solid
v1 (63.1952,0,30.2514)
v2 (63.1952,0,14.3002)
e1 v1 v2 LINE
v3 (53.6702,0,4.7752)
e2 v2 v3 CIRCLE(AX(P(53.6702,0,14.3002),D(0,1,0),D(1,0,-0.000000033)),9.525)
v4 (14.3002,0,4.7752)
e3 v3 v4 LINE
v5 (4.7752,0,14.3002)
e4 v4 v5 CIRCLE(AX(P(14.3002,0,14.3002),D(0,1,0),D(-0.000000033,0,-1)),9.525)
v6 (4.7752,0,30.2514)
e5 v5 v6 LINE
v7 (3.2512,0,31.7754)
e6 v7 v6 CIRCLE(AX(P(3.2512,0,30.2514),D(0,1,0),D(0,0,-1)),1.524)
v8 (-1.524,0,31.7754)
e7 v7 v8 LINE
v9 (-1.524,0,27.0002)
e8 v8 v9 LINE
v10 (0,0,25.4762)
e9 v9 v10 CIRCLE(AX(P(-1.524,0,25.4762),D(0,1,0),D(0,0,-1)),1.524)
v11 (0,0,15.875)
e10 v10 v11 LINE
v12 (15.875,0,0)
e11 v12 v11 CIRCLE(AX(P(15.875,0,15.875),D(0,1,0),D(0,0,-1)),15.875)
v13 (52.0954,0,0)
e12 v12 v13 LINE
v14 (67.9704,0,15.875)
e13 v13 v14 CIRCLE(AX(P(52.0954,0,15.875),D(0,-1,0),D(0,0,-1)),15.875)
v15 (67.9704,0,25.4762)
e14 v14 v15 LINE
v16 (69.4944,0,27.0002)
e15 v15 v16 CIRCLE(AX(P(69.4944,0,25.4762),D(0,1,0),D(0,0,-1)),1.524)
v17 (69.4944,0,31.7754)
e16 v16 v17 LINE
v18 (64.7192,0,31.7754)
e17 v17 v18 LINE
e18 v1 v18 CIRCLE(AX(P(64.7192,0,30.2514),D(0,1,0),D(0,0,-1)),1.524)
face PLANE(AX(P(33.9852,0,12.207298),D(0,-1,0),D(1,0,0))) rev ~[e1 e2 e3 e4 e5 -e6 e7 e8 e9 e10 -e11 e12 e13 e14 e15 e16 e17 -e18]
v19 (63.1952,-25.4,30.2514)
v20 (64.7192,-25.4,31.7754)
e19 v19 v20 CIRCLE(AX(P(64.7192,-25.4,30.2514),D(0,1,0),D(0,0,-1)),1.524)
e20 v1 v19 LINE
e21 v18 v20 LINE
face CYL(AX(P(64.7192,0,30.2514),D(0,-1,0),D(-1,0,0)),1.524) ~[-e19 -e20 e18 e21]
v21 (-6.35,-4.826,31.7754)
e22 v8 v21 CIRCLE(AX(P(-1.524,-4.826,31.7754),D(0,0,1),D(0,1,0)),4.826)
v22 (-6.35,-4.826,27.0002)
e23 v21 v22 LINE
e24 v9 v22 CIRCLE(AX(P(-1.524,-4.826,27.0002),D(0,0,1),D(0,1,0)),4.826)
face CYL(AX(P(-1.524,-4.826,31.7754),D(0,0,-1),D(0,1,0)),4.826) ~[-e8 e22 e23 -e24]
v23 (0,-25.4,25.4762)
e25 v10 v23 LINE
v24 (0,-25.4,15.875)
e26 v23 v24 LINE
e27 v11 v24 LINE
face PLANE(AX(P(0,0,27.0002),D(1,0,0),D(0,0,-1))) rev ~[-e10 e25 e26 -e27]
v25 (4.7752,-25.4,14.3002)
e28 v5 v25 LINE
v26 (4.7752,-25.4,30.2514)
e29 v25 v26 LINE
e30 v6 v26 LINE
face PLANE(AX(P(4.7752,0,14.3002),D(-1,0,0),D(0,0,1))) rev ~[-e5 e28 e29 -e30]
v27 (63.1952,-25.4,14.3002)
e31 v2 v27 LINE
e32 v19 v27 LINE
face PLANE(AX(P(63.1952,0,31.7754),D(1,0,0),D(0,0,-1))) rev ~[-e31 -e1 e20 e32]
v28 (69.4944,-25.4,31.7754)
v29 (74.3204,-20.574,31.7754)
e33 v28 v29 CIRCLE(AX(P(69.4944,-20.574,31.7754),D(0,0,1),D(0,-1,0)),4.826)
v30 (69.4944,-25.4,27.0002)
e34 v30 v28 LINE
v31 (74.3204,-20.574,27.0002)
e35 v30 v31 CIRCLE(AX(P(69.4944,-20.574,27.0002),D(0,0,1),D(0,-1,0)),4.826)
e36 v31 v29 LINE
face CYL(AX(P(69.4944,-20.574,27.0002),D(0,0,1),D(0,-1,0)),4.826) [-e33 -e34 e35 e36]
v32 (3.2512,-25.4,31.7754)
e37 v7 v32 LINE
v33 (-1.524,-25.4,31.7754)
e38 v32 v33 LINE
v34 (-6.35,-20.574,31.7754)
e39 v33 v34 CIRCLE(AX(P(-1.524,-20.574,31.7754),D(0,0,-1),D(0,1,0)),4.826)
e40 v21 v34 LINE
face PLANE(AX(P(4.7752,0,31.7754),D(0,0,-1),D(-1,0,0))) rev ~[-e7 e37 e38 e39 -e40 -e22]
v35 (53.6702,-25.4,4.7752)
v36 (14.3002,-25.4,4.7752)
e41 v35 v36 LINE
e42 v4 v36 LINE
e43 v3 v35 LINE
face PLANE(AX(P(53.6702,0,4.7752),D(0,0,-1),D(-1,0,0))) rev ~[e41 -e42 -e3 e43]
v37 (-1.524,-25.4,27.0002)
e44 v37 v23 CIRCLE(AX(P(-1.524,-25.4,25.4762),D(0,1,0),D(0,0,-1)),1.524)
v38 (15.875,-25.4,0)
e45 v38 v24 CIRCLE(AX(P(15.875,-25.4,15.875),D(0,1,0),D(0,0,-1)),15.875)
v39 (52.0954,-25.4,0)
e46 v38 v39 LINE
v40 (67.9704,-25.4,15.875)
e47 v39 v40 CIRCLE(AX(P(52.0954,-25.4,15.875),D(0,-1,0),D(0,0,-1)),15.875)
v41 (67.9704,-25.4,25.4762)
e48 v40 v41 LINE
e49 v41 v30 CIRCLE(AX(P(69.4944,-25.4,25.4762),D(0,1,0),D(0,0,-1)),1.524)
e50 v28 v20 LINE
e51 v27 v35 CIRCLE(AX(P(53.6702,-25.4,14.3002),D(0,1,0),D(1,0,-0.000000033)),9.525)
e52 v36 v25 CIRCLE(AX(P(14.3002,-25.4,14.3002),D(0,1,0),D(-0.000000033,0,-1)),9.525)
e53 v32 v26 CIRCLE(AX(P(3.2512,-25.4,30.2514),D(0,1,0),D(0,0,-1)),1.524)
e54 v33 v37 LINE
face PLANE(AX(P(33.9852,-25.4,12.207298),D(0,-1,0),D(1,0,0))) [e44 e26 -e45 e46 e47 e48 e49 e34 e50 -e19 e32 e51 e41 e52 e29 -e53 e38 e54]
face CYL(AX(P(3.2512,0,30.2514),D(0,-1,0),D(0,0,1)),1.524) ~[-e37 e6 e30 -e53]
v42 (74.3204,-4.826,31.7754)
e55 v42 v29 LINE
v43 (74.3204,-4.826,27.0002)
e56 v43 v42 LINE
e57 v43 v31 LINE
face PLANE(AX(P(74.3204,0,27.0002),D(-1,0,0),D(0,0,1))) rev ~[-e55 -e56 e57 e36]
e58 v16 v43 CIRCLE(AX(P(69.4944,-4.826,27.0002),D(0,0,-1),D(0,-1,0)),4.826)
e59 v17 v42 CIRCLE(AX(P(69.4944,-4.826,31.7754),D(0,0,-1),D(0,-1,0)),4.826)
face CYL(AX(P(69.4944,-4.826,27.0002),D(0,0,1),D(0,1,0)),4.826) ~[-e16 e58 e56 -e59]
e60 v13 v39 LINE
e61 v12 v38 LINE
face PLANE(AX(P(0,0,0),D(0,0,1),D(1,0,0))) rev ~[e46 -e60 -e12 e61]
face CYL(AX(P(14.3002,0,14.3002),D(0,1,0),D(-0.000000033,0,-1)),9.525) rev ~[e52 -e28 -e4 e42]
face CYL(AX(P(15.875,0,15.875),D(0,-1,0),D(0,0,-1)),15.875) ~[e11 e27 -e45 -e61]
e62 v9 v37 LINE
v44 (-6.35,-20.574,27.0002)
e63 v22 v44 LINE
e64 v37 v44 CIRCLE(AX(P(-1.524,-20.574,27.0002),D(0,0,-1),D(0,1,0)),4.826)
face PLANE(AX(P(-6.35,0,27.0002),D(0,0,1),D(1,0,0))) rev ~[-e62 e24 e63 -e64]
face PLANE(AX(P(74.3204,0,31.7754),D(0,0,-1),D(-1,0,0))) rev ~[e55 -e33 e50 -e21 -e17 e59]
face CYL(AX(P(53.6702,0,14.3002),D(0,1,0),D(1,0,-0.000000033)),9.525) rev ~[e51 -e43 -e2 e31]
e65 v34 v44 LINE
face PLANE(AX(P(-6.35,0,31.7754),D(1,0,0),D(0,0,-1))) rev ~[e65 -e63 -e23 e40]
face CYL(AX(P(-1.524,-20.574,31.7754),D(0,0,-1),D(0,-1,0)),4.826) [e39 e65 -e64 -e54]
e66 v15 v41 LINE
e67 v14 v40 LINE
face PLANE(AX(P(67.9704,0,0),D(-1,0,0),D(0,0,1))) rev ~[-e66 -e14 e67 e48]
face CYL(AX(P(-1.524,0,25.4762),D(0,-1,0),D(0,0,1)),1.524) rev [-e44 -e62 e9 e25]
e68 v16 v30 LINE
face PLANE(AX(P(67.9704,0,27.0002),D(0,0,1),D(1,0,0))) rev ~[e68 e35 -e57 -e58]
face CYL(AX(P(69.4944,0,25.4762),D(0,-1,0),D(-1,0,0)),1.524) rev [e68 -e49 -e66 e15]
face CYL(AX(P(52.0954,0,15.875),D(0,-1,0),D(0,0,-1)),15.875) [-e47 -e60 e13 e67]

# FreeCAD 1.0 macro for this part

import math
import FreeCAD as App
import Part
import Sketcher
Q = App.Units.Quantity


def edges_at(feature, points):
    """Names of the edges that pass closest to the given points."""
    edges = feature.Shape.Edges
    near = lambda p: min(range(len(edges)), key=lambda i: edges[i].distToShape(Part.Vertex(*p))[0])
    return sorted({f"Edge{near(p) + 1}" for p in points})

doc = App.newDocument("Part")
body = doc.addObject("PartDesign::Body", "Body")

sketch1 = doc.addObject("Sketcher::SketchObject", "Sketch")
body.addObject(sketch1)
sketch1.AttachmentSupport = (doc.XZ_Plane, [""])
sketch1.MapMode = "FlatFace"
sketch1.addGeometry(Part.LineSegment(App.Vector(0, 0, 0), App.Vector(68, 0, 0)), False)
sketch1.addGeometry(Part.LineSegment(App.Vector(68, 0, 0), App.Vector(68, 27, 0)), False)
sketch1.addGeometry(Part.LineSegment(App.Vector(68, 27, 0), App.Vector(74.3, 27, 0)), False)
sketch1.addGeometry(Part.LineSegment(App.Vector(74.3, 27, 0), App.Vector(74.3, 31.8, 0)), False)
sketch1.addGeometry(Part.LineSegment(App.Vector(74.3, 31.8, 0), App.Vector(63.2, 31.8, 0)), False)
sketch1.addGeometry(Part.LineSegment(App.Vector(63.2, 31.8, 0), App.Vector(63.2, 14.3, 0)), False)
sketch1.addGeometry(Part.ArcOfCircle(Part.Circle(App.Vector(53.7, 14.3, 0), App.Vector(0, 0, 1), 9.5), math.radians(-90), math.radians(0)), False)
sketch1.addGeometry(Part.LineSegment(App.Vector(53.7, 4.8, 0), App.Vector(14.3, 4.8, 0)), False)
sketch1.addGeometry(Part.ArcOfCircle(Part.Circle(App.Vector(14.3, 14.3, 0), App.Vector(0, 0, 1), 9.5), math.radians(-180), math.radians(-90)), False)
sketch1.addGeometry(Part.LineSegment(App.Vector(4.8, 14.3, 0), App.Vector(4.8, 31.8, 0)), False)
sketch1.addGeometry(Part.LineSegment(App.Vector(4.8, 31.8, 0), App.Vector(-6.3, 31.8, 0)), False)
sketch1.addGeometry(Part.LineSegment(App.Vector(-6.3, 31.8, 0), App.Vector(-6.3, 27, 0)), False)
sketch1.addGeometry(Part.LineSegment(App.Vector(-6.3, 27, 0), App.Vector(0, 27, 0)), False)
sketch1.addGeometry(Part.LineSegment(App.Vector(0, 27, 0), App.Vector(0, 0, 0)), False)
sketch1.addConstraint(Sketcher.Constraint("Coincident", 0, 2, 1, 1))
sketch1.addConstraint(Sketcher.Constraint("Coincident", 1, 2, 2, 1))
sketch1.addConstraint(Sketcher.Constraint("Coincident", 2, 2, 3, 1))
sketch1.addConstraint(Sketcher.Constraint("Coincident", 3, 2, 4, 1))
sketch1.addConstraint(Sketcher.Constraint("Coincident", 4, 2, 5, 1))
sketch1.addConstraint(Sketcher.Constraint("Tangent", 5, 2, 6, 2))
sketch1.addConstraint(Sketcher.Constraint("Tangent", 6, 1, 7, 1))
sketch1.addConstraint(Sketcher.Constraint("Tangent", 7, 2, 8, 2))
sketch1.addConstraint(Sketcher.Constraint("Tangent", 8, 1, 9, 1))
sketch1.addConstraint(Sketcher.Constraint("Coincident", 9, 2, 10, 1))
sketch1.addConstraint(Sketcher.Constraint("Coincident", 10, 2, 11, 1))
sketch1.addConstraint(Sketcher.Constraint("Coincident", 11, 2, 12, 1))
sketch1.addConstraint(Sketcher.Constraint("Coincident", 12, 2, 13, 1))
sketch1.addConstraint(Sketcher.Constraint("Coincident", 13, 2, 0, 1))
sketch1.addConstraint(Sketcher.Constraint("Horizontal", 0))
sketch1.addConstraint(Sketcher.Constraint("Vertical", 1))
sketch1.addConstraint(Sketcher.Constraint("Horizontal", 2))
sketch1.addConstraint(Sketcher.Constraint("Vertical", 3))
sketch1.addConstraint(Sketcher.Constraint("Horizontal", 4))
sketch1.addConstraint(Sketcher.Constraint("Vertical", 5))
sketch1.addConstraint(Sketcher.Constraint("Horizontal", 7))
sketch1.addConstraint(Sketcher.Constraint("Vertical", 9))
sketch1.addConstraint(Sketcher.Constraint("Horizontal", 10))
sketch1.addConstraint(Sketcher.Constraint("Vertical", 11))
sketch1.addConstraint(Sketcher.Constraint("Horizontal", 12))
sketch1.addConstraint(Sketcher.Constraint("Vertical", 13))
sketch1.addConstraint(Sketcher.Constraint("Coincident", 13, 2, -1, 1))
sketch1.addConstraint(Sketcher.Constraint("Equal", 6, 8))
sketch1.addConstraint(Sketcher.Constraint("Horizontal", 4, 2, 9, 2))
sketch1.addConstraint(Sketcher.Constraint("Horizontal", 2, 2, 11, 2))
sketch1.addConstraint(Sketcher.Constraint("Equal", 4, 10))
sketch1.addConstraint(Sketcher.Constraint("Equal", 2, 12))
sketch1.addConstraint(Sketcher.Constraint("Radius", 6, Q("0.375 in")))
sketch1.addConstraint(Sketcher.Constraint("DistanceX", 2, 1, 2, 2, Q("0.25 in")))
sketch1.addConstraint(Sketcher.Constraint("DistanceX", 7, 2, 7, 1, Q("1.55 in")))
sketch1.addConstraint(Sketcher.Constraint("DistanceY", 6, 3, 1, 2, Q("0.5 in")))
sketch1.addConstraint(Sketcher.Constraint("DistanceX", 0, 1, 0, 2, Q("2.676 in")))
sketch1.addConstraint(Sketcher.Constraint("DistanceY", 1, 1, 1, 2, Q("1.063 in")))
sketch1.addConstraint(Sketcher.Constraint("DistanceY", 3, 1, 3, 2, Q("0.188 in")))
pad1 = doc.addObject("PartDesign::Pad", "Pad")
body.addObject(pad1)
pad1.Profile = sketch1
pad1.Length = Q("1 in")
doc.recompute()

fillet = doc.addObject("PartDesign::Fillet", "Fillet")
body.addObject(fillet)
fillet.Base = (pad1, edges_at(pad1, [(0, -12.7, 0), (67.97, -12.7, 0)]))
fillet.Radius = Q("0.625 in")
doc.recompute()

fillet2 = doc.addObject("PartDesign::Fillet", "Fillet001")
body.addObject(fillet2)
fillet2.Base = (fillet, edges_at(fillet, [
    (-6.35, 0, 29.388),
    (-6.35, -25.4, 29.388),
    (74.32, 0, 29.388),
    (74.32, -25.4, 29.388),
]))
fillet2.Radius = Q("0.19 in")
doc.recompute()

fillet3 = doc.addObject("PartDesign::Fillet", "Fillet002")
body.addObject(fillet3)
fillet3.Base = (fillet2, edges_at(fillet2, [
    (0, -12.7, 27),
    (4.775, -12.7, 31.775),
    (63.195, -12.7, 31.775),
    (67.97, -12.7, 27),
]))
fillet3.Radius = Q("0.06 in")

doc.recompute()
